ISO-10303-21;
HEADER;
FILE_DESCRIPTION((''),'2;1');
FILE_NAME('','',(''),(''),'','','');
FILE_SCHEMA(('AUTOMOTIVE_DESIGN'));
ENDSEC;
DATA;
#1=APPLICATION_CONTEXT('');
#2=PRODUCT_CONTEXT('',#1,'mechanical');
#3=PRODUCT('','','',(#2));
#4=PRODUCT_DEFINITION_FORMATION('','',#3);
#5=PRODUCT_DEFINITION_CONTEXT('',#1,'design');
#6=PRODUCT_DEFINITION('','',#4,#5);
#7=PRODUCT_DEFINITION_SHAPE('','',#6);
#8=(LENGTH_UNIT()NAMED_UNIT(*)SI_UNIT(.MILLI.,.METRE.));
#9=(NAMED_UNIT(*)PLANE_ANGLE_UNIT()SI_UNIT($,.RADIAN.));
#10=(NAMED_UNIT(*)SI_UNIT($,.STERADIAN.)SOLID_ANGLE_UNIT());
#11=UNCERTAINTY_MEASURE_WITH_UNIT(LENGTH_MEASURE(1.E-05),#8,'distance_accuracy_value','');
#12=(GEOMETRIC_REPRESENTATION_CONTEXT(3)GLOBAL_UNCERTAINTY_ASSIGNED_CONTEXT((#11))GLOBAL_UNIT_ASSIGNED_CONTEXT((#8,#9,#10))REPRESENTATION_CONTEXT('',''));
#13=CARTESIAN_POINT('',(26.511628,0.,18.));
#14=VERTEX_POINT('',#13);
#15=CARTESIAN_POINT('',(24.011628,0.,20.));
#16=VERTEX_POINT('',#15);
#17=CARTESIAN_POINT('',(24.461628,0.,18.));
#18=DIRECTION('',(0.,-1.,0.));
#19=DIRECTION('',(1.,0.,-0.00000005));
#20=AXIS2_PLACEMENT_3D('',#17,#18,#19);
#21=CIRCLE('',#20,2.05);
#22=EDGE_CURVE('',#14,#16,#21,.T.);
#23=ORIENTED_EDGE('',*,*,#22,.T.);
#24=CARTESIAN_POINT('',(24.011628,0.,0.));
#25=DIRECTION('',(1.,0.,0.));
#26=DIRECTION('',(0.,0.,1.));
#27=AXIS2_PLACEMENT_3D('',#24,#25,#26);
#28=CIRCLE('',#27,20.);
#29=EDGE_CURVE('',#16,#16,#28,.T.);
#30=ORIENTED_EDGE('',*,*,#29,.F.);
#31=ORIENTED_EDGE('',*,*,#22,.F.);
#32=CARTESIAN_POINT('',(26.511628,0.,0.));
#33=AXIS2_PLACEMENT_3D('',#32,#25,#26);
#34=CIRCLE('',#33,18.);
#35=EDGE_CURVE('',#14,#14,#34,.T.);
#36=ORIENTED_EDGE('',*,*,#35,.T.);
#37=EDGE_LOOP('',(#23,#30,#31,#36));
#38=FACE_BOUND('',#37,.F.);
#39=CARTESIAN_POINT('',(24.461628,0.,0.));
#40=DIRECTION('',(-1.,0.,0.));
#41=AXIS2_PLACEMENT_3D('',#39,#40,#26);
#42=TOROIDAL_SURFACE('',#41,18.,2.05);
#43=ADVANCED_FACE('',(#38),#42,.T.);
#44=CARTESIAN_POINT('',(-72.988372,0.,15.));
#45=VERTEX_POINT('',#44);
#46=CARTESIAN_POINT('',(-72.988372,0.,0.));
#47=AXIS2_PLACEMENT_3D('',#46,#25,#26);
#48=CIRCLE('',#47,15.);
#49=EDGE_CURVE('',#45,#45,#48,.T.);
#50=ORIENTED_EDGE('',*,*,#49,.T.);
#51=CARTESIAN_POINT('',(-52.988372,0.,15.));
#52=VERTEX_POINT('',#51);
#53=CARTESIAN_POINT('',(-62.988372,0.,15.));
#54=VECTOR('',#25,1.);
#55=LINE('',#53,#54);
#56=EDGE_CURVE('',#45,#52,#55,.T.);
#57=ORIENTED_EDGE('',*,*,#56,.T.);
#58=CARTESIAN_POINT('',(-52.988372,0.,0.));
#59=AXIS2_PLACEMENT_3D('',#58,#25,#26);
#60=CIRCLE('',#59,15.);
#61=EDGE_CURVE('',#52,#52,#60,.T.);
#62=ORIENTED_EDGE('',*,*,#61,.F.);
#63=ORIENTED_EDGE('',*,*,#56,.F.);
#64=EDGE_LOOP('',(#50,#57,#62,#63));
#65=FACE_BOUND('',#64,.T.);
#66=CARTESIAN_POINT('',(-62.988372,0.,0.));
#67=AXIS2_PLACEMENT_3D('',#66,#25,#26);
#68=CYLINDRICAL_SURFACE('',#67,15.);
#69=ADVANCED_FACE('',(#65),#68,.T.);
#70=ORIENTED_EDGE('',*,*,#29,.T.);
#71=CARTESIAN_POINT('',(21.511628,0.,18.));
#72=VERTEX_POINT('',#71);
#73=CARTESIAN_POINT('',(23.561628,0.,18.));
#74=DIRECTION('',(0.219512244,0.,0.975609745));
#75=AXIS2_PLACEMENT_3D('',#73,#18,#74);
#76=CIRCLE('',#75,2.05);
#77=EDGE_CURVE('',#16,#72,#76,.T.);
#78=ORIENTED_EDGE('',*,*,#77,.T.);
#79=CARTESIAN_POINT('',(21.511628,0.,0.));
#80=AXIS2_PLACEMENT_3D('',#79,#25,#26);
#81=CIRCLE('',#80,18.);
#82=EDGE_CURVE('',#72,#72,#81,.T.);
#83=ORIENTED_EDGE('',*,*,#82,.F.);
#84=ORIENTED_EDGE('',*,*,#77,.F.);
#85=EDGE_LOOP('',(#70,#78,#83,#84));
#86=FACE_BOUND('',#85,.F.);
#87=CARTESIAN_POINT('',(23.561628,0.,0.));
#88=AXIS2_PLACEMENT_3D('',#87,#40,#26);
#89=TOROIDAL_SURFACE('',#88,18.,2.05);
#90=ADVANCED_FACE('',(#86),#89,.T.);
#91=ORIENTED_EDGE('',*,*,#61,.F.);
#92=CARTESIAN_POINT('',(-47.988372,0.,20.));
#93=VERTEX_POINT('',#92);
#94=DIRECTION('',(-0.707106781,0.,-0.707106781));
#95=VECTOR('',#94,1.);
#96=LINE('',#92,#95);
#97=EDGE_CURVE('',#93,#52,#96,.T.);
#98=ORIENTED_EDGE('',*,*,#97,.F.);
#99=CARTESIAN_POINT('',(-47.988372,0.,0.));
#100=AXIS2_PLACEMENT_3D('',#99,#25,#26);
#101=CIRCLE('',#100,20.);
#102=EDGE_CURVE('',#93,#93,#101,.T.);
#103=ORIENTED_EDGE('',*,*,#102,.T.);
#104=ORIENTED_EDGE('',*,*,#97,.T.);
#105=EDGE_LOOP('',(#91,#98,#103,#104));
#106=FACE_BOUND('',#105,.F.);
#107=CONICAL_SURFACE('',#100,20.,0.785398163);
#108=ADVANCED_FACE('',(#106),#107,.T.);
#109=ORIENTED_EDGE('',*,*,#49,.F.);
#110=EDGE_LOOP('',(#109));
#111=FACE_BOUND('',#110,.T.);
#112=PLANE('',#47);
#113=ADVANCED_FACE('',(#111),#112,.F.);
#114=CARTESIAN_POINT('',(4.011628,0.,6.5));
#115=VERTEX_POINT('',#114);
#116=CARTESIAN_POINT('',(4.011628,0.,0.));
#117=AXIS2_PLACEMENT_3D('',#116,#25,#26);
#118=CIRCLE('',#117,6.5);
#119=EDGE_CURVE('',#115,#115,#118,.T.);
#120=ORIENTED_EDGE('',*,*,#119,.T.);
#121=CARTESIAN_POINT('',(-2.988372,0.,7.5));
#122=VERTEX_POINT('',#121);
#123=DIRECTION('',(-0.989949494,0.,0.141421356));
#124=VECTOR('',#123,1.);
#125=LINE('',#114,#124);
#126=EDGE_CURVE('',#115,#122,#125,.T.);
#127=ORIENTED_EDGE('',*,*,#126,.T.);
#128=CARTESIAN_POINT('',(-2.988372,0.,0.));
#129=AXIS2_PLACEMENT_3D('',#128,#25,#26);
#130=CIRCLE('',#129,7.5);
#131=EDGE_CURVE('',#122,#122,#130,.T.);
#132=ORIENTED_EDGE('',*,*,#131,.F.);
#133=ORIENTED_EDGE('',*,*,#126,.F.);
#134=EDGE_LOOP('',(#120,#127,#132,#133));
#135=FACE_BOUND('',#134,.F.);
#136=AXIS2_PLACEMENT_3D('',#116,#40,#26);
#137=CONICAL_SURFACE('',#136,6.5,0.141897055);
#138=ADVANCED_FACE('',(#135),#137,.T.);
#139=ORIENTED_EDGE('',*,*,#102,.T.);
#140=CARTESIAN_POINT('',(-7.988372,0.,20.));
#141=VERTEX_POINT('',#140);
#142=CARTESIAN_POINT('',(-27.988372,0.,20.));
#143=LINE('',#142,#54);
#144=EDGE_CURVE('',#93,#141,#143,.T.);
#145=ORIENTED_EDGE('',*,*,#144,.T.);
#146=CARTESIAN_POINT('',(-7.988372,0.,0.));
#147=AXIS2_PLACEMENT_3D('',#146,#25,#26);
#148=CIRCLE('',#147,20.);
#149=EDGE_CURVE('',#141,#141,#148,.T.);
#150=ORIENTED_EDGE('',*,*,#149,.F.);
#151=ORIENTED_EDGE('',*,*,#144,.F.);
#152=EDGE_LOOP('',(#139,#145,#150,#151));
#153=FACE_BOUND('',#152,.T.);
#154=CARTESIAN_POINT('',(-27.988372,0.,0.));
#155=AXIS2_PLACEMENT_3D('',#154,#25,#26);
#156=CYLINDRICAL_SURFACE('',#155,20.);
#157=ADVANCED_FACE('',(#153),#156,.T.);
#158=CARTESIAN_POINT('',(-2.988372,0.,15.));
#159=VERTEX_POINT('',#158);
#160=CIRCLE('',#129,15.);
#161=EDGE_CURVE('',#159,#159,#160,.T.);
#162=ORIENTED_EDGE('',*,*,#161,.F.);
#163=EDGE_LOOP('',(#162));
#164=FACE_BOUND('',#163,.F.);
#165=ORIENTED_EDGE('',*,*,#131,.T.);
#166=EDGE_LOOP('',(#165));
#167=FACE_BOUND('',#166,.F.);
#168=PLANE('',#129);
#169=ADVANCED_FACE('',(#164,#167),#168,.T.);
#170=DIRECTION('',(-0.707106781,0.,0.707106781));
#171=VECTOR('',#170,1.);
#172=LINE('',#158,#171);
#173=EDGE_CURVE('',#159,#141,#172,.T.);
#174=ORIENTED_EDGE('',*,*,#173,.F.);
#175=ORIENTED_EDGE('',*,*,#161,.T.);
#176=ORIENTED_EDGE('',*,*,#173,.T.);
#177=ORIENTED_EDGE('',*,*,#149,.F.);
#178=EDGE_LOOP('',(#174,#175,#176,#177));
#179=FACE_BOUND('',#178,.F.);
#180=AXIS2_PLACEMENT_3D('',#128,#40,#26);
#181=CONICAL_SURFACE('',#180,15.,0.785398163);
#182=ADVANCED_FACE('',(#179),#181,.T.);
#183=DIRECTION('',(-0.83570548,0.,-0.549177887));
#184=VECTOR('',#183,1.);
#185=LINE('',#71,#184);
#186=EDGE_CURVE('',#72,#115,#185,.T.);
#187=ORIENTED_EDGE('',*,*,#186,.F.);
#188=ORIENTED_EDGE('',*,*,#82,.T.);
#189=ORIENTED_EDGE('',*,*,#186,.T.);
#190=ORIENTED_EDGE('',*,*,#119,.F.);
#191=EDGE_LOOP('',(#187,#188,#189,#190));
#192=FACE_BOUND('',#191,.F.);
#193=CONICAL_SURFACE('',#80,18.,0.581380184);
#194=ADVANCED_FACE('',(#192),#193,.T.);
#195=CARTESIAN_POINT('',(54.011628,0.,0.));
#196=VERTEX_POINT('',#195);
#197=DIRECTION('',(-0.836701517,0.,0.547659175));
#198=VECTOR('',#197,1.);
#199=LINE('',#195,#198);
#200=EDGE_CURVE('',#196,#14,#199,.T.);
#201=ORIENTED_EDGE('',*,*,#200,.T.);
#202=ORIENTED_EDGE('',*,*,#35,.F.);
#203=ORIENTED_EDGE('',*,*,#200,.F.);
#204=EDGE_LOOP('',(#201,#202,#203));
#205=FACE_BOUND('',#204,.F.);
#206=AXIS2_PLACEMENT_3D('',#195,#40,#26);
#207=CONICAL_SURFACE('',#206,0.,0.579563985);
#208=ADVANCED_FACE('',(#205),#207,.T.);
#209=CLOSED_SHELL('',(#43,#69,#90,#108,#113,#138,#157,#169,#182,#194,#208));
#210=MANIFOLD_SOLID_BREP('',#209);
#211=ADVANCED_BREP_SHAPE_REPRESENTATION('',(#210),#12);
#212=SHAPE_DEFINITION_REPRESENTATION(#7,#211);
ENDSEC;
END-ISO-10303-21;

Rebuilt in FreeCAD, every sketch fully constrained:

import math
import FreeCAD as App
import Part
import Sketcher

V = App.Vector

doc = App.newDocument("Part")
body = doc.addObject("PartDesign::Body", "Body")

sketch1 = doc.addObject("Sketcher::SketchObject", "Sketch")
body.addObject(sketch1)
sketch1.AttachmentSupport = (doc.XZ_Plane, [""])
sketch1.MapMode = "FlatFace"
sketch1.addGeometry(Part.LineSegment(V(54.011628, 0, 0), V(26.511628, 18, 0)), False)
sketch1.addGeometry(Part.ArcOfCircle(Part.Circle(V(24.461628, 18, 0), V(0, 0, 1), 2.05), math.radians(-0.000003), math.radians(102.680386)), False)
sketch1.addGeometry(Part.ArcOfCircle(Part.Circle(V(23.561628, 18, 0), V(0, 0, 1), 2.05), math.radians(77.319614), math.radians(180.000003)), False)
sketch1.addGeometry(Part.LineSegment(V(21.511628, 18, 0), V(4.011628, 6.5, 0)), False)
sketch1.addGeometry(Part.LineSegment(V(4.011628, 6.5, 0), V(-2.988372, 7.5, 0)), False)
sketch1.addGeometry(Part.LineSegment(V(-2.988372, 7.5, 0), V(-2.988372, 15, 0)), False)
sketch1.addGeometry(Part.LineSegment(V(-2.988372, 15, 0), V(-7.988372, 20, 0)), False)
sketch1.addGeometry(Part.LineSegment(V(-7.988372, 20, 0), V(-47.988372, 20, 0)), False)
sketch1.addGeometry(Part.LineSegment(V(-47.988372, 20, 0), V(-52.988372, 15, 0)), False)
sketch1.addGeometry(Part.LineSegment(V(-52.988372, 15, 0), V(-72.988372, 15, 0)), False)
sketch1.addGeometry(Part.LineSegment(V(-72.988372, 15, 0), V(-72.988372, 0, 0)), False)
sketch1.addGeometry(Part.LineSegment(V(-72.988372, 0, 0), V(54.011628, 0, 0)), False)
sketch1.addConstraint(Sketcher.Constraint("Coincident", 0, 2, 1, 1))
sketch1.addConstraint(Sketcher.Constraint("Coincident", 1, 2, 2, 1))
sketch1.addConstraint(Sketcher.Constraint("Coincident", 2, 2, 3, 1))
sketch1.addConstraint(Sketcher.Constraint("Coincident", 3, 2, 4, 1))
sketch1.addConstraint(Sketcher.Constraint("Coincident", 4, 2, 5, 1))
sketch1.addConstraint(Sketcher.Constraint("Coincident", 5, 2, 6, 1))
sketch1.addConstraint(Sketcher.Constraint("Coincident", 6, 2, 7, 1))
sketch1.addConstraint(Sketcher.Constraint("Coincident", 7, 2, 8, 1))
sketch1.addConstraint(Sketcher.Constraint("Coincident", 8, 2, 9, 1))
sketch1.addConstraint(Sketcher.Constraint("Coincident", 9, 2, 10, 1))
sketch1.addConstraint(Sketcher.Constraint("Coincident", 10, 2, 11, 1))
sketch1.addConstraint(Sketcher.Constraint("Coincident", 11, 2, 0, 1))
sketch1.addConstraint(Sketcher.Constraint("Vertical", 5))
sketch1.addConstraint(Sketcher.Constraint("Horizontal", 7))
sketch1.addConstraint(Sketcher.Constraint("Horizontal", 9))
sketch1.addConstraint(Sketcher.Constraint("Vertical", 10))
sketch1.addConstraint(Sketcher.Constraint("Horizontal", 11))
sketch1.addConstraint(Sketcher.Constraint("Equal", 1, 2))
sketch1.addConstraint(Sketcher.Constraint("PointOnObject", 10, 2, -1))
sketch1.addConstraint(Sketcher.Constraint("Perpendicular", 6, 8))
sketch1.addConstraint(Sketcher.Constraint("Horizontal", 1, 3, 2, 3))
sketch1.addConstraint(Sketcher.Constraint("Horizontal", 2, 3, 0, 2))
sketch1.addConstraint(Sketcher.Constraint("Horizontal", 0, 2, 2, 2))
sketch1.addConstraint(Sketcher.Constraint("Horizontal", 1, 2, 6, 2))
sketch1.addConstraint(Sketcher.Constraint("Horizontal", 5, 2, 8, 2))
sketch1.addConstraint(Sketcher.Constraint("Equal", 4, 6))
sketch1.addConstraint(Sketcher.Constraint("Equal", 6, 8))
sketch1.addConstraint(Sketcher.Constraint("DistanceX", 7, 2, 7, 1, 40.0))
sketch1.addConstraint(Sketcher.Constraint("DistanceX", 9, 2, 9, 1, 20.0))
sketch1.addConstraint(Sketcher.Constraint("DistanceX", 11, 1, 11, 2, 127.0))
sketch1.addConstraint(Sketcher.Constraint("DistanceY", 10, 2, 10, 1, 15.0))
sketch1.addConstraint(Sketcher.Constraint("Radius", 1, 2.05))
sketch1.addConstraint(Sketcher.Constraint("DistanceY", 5, 1, 5, 2, 7.5))
sketch1.addConstraint(Sketcher.Constraint("DistanceY", -1, 1, 1, 3, 18.0))
sketch1.addConstraint(Sketcher.Constraint("DistanceY", -1, 1, 1, 2, 20.0))
sketch1.addConstraint(Sketcher.Constraint("DistanceX", 3, 2, 1, 2, 20.0))
sketch1.addConstraint(Sketcher.Constraint("DistanceX", 4, 2, 3, 2, 7.0))
sketch1.addConstraint(Sketcher.Constraint("DistanceX", -1, 1, 1, 3, 24.461628))
revolution = doc.addObject("PartDesign::Revolution", "Revolution")
body.addObject(revolution)
revolution.Profile = sketch1
revolution.ReferenceAxis = (sketch1, ["H_Axis"])
revolution.Angle = 360

doc.recompute()
